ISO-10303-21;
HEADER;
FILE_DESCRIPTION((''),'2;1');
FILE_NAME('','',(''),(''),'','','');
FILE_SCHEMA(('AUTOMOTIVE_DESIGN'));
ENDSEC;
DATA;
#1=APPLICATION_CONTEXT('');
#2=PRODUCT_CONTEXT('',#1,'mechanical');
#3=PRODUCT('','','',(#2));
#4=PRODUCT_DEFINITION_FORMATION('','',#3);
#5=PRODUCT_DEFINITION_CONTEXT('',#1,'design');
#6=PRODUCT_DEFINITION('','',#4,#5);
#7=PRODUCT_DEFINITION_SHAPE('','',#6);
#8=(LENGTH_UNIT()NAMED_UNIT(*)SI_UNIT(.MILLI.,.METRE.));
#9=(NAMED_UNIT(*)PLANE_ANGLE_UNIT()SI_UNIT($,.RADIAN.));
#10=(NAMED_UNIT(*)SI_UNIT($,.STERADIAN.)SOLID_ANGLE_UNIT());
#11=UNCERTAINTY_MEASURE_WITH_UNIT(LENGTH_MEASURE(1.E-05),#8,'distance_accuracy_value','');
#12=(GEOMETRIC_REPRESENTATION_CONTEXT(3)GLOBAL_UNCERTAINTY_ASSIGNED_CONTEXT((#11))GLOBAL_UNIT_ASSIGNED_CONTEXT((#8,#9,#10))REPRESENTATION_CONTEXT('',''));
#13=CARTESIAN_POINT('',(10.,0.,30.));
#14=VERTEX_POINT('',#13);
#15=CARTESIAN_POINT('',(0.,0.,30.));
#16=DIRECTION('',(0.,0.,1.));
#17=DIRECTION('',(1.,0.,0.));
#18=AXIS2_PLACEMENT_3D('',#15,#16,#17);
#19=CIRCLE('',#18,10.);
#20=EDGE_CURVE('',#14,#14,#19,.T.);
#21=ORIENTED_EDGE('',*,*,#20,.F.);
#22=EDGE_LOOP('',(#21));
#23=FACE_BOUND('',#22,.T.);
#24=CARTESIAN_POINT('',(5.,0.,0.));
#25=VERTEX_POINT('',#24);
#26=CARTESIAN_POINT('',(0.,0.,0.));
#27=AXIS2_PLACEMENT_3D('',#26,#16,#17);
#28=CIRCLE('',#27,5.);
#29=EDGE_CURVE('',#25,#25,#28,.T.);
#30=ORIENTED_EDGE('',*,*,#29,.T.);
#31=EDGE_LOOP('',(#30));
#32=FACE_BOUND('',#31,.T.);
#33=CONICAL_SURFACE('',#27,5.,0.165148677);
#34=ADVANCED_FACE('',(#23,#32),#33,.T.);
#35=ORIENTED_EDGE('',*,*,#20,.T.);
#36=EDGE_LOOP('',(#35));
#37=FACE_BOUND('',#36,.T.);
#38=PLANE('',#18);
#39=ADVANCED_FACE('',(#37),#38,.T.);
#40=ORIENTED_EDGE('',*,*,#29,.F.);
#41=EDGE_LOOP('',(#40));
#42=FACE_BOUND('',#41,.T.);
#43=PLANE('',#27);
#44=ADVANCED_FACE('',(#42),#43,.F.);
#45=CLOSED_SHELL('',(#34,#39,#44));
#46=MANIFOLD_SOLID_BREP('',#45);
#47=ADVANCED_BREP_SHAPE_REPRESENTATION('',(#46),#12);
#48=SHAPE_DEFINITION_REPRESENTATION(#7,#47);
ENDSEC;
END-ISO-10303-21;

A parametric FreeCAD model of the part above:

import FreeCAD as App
import Part
import Sketcher
from FreeCAD import Vector

doc = App.newDocument("Part")
body = doc.addObject("PartDesign::Body", "Body")

# Sketch on XY plane
sketch1 = doc.addObject("Sketcher::SketchObject", "Sketch")
body.addObject(sketch1)
sketch1.AttachmentSupport = (doc.XY_Plane, [""])
sketch1.MapMode = "FlatFace"
sketch1.addGeometry(Part.Circle(Vector(0, 0, 0), Vector(0, 0, 1), 5), False)
sketch1.addConstraint([
    Sketcher.Constraint("Coincident", 0, 3, -1, 1),
    Sketcher.Constraint("Diameter", 0, 10.0),
])

# Sketch on XY plane
sketch2 = doc.addObject("Sketcher::SketchObject", "Sketch001")
body.addObject(sketch2)
sketch2.AttachmentSupport = (doc.XY_Plane, [""])
sketch2.MapMode = "FlatFace"
sketch2.AttachmentOffset = App.Placement(Vector(0, 0, 30), App.Rotation())
sketch2.addGeometry(Part.Circle(Vector(0, 0, 0), Vector(0, 0, 1), 10), False)
sketch2.addConstraint([
    Sketcher.Constraint("Coincident", 0, 3, -1, 1),
    Sketcher.Constraint("Diameter", 0, 20.0),
])

additiveloft = doc.addObject("PartDesign::AdditiveLoft", "AdditiveLoft")
body.addObject(additiveloft)
additiveloft.Profile = sketch1
additiveloft.Sections = [sketch2]

doc.recompute()
